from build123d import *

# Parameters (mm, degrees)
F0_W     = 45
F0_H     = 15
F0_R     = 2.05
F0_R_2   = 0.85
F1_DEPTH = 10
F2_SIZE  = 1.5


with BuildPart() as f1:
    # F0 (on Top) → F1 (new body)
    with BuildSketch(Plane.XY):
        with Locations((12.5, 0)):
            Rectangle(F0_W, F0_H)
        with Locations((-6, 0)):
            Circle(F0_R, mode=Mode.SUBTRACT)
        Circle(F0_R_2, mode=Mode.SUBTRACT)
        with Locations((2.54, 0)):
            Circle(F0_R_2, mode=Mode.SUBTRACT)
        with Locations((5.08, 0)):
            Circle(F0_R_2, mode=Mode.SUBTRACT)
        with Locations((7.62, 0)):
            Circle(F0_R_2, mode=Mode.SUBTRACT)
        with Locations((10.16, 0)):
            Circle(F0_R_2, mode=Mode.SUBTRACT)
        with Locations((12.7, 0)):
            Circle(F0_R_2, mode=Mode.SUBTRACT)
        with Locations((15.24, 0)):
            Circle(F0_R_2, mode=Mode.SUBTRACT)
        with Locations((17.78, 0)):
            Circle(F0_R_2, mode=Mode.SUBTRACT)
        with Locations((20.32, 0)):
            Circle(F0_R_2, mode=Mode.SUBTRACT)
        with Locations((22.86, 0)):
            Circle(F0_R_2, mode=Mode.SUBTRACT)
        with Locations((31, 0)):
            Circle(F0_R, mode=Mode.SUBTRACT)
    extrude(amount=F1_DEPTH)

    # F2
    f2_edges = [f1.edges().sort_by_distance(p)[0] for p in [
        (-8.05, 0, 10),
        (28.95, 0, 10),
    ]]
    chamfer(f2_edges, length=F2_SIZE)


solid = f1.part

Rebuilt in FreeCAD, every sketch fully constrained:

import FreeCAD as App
import Part
import Sketcher


def edges_at(feature, points):
    """Names of the edges that pass closest to the given points."""
    edges = feature.Shape.Edges
    near = lambda p: min(range(len(edges)), key=lambda i: edges[i].distToShape(Part.Vertex(*p))[0])
    return sorted({f"Edge{near(p) + 1}" for p in points})


def add_polygon(sketch, points):
    """Adds a closed chain of lines whose ends are joined by coincident constraints."""
    first, n = sketch.GeometryCount, len(points)
    for a, b in zip(points, points[1:] + points[:1]):
        sketch.addGeometry(Part.LineSegment(App.Vector(*a, 0), App.Vector(*b, 0)), False)
    for i in range(n):
        sketch.addConstraint(Sketcher.Constraint("Coincident", first + i, 2, first + (i + 1) % n, 1))

doc = App.newDocument("Part")
params = doc.addObject("Spreadsheet::Sheet", "Params")
for row, (alias, value) in enumerate([
    ("sketch1_diameter", "4.1 mm"),
    ("sketch1_diameter2", "1.7 mm"),
    ("sketch1_width", "45 mm"),
    ("sketch1_height", "15 mm"),
    ("pad1_length", "10 mm"),
    ("chamfer_size", "1.5 mm"),
], start=1):
    params.set(f"A{row}", alias)
    params.set(f"B{row}", "=" + value)
    params.setAlias(f"B{row}", alias)

body = doc.addObject("PartDesign::Body", "Body")

# Sketch on XY plane
sketch1 = body.newObject("Sketcher::SketchObject", "Sketch")
sketch1.AttachmentSupport = (doc.getObject("XY_Plane"), [""])
sketch1.MapMode = "FlatFace"
add_polygon(sketch1, [(-10, 7.5), (-10, -7.5), (35, -7.5), (35, 7.5)])  # lines 0-3
sketch1.addGeometry(Part.Circle(App.Vector(-6, 0, 0), App.Vector(0, 0, 1), 2), False)  # 4
sketch1.addGeometry(Part.Circle(App.Vector(0, 0, 0), App.Vector(0, 0, 1), 0.8), False)  # 5
sketch1.addGeometry(Part.Circle(App.Vector(2.5, 0, 0), App.Vector(0, 0, 1), 0.8), False)  # 6
sketch1.addGeometry(Part.Circle(App.Vector(5.1, 0, 0), App.Vector(0, 0, 1), 0.8), False)  # 7
sketch1.addGeometry(Part.Circle(App.Vector(7.6, 0, 0), App.Vector(0, 0, 1), 0.8), False)  # 8
sketch1.addGeometry(Part.Circle(App.Vector(10.2, 0, 0), App.Vector(0, 0, 1), 0.8), False)  # 9
sketch1.addGeometry(Part.Circle(App.Vector(12.7, 0, 0), App.Vector(0, 0, 1), 0.8), False)  # 10
sketch1.addGeometry(Part.Circle(App.Vector(15.2, 0, 0), App.Vector(0, 0, 1), 0.8), False)  # 11
sketch1.addGeometry(Part.Circle(App.Vector(17.8, 0, 0), App.Vector(0, 0, 1), 0.8), False)  # 12
sketch1.addGeometry(Part.Circle(App.Vector(20.3, 0, 0), App.Vector(0, 0, 1), 0.8), False)  # 13
sketch1.addGeometry(Part.Circle(App.Vector(22.9, 0, 0), App.Vector(0, 0, 1), 0.8), False)  # 14
sketch1.addGeometry(Part.Circle(App.Vector(31, 0, 0), App.Vector(0, 0, 1), 2), False)  # 15
sketch1.addConstraint([
    Sketcher.Constraint("Vertical", 0),
    Sketcher.Constraint("Horizontal", 1),
    Sketcher.Constraint("Vertical", 2),
    Sketcher.Constraint("Horizontal", 3),
    Sketcher.Constraint("Coincident", 5, 3, -1, 1),
    Sketcher.Constraint("Equal", 5, 6),
    Sketcher.Constraint("Equal", 6, 7),
    Sketcher.Constraint("Equal", 7, 8),
    Sketcher.Constraint("Equal", 8, 9),
    Sketcher.Constraint("Equal", 9, 10),
    Sketcher.Constraint("Equal", 10, 11),
    Sketcher.Constraint("Equal", 11, 12),
    Sketcher.Constraint("Equal", 12, 13),
    Sketcher.Constraint("Equal", 13, 14),
    Sketcher.Constraint("Equal", 4, 15),
    Sketcher.Constraint("PointOnObject", 4, 3, -1),
    Sketcher.Constraint("PointOnObject", 6, 3, -1),
    Sketcher.Constraint("PointOnObject", 7, 3, -1),
    Sketcher.Constraint("PointOnObject", 8, 3, -1),
    Sketcher.Constraint("PointOnObject", 9, 3, -1),
    Sketcher.Constraint("PointOnObject", 10, 3, -1),
    Sketcher.Constraint("PointOnObject", 11, 3, -1),
    Sketcher.Constraint("PointOnObject", 12, 3, -1),
    Sketcher.Constraint("PointOnObject", 13, 3, -1),
    Sketcher.Constraint("PointOnObject", 14, 3, -1),
    Sketcher.Constraint("PointOnObject", 15, 3, -1),
    Sketcher.Constraint("Diameter", 4, 4.1),
    Sketcher.Constraint("Diameter", 5, 1.7),
    Sketcher.Constraint("DistanceX", 1, 1, 1, 2, 45.0),
    Sketcher.Constraint("DistanceY", 0, 2, 0, 1, 15.0),
    Sketcher.Constraint("DistanceX", 4, 3, -1, 1, 6.0),
    Sketcher.Constraint("DistanceX", -1, 1, 15, 3, 31.0),
    Sketcher.Constraint("DistanceX", 0, 2, -1, 1, 10.0),
    Sketcher.Constraint("DistanceX", -1, 1, 10, 3, 12.7),
    Sketcher.Constraint("DistanceY", 0, 2, -1, 1, 7.5),
    Sketcher.Constraint("DistanceX", 6, 3, 11, 3, 12.7),
    Sketcher.Constraint("DistanceX", 7, 3, 12, 3, 12.7),
    Sketcher.Constraint("DistanceX", 8, 3, 13, 3, 12.7),
    Sketcher.Constraint("DistanceX", 9, 3, 14, 3, 12.7),
    Sketcher.Constraint("DistanceX", -1, 1, 6, 3, 2.54),
    Sketcher.Constraint("DistanceX", -1, 1, 7, 3, 5.08),
    Sketcher.Constraint("DistanceX", -1, 1, 8, 3, 7.62),
    Sketcher.Constraint("DistanceX", -1, 1, 9, 3, 10.16),
])
sketch1.setExpression("Constraints[30]", "Params.sketch1_diameter")
sketch1.setExpression("Constraints[31]", "Params.sketch1_diameter2")
sketch1.setExpression("Constraints[32]", "Params.sketch1_width")
sketch1.setExpression("Constraints[33]", "Params.sketch1_height")
pad1 = body.newObject("PartDesign::Pad", "Pad")
pad1.Profile = sketch1
pad1.setExpression("Length", "Params.pad1_length")
doc.recompute()

chamfer = body.newObject("PartDesign::Chamfer", "Chamfer")
chamfer.Base = (pad1, edges_at(pad1, [(-8.05, 0, 10), (28.95, 0, 10)]))
chamfer.setExpression("Size", "Params.chamfer_size")

doc.recompute()
